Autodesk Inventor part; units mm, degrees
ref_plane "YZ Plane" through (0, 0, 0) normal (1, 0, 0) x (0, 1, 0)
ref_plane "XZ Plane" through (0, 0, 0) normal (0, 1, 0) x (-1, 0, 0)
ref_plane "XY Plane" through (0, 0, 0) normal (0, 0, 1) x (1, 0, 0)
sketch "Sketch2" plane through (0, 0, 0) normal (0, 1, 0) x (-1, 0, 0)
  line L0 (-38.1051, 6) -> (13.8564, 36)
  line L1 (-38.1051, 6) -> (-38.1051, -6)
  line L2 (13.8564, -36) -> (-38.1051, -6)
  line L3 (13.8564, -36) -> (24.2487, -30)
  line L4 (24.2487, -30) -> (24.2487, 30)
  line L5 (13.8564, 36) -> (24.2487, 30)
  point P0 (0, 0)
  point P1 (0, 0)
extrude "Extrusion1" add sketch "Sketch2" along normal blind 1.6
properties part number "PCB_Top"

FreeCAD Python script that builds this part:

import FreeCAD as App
import Part
import Sketcher
Q = App.Units.Quantity


def add_polygon(sketch, points):
    """Adds a closed chain of lines whose ends are joined by coincident constraints."""
    first, n = sketch.GeometryCount, len(points)
    for a, b in zip(points, points[1:] + points[:1]):
        sketch.addGeometry(Part.LineSegment(App.Vector(*a, 0), App.Vector(*b, 0)), False)
    for i in range(n):
        sketch.addConstraint(Sketcher.Constraint("Coincident", first + i, 2, first + (i + 1) % n, 1))

doc = App.newDocument("Part")
body = doc.addObject("PartDesign::Body", "Body")

# Sketch on XZ plane
sketch1 = body.newObject("Sketcher::SketchObject", "Sketch")
sketch1.AttachmentSupport = (doc.getObject("XZ_Plane"), [""])
sketch1.MapMode = "FlatFace"
add_polygon(sketch1, [(-13.8564, 36), (38.1051, 6), (38.1051, -6), (-13.8564, -36), (-24.2487, -30), (-24.2487, 30)])  # lines 0-5
sketch1.addConstraint(Sketcher.Constraint("Vertical", 1))
sketch1.addConstraint(Sketcher.Constraint("Vertical", 4))
sketch1.addConstraint(Sketcher.Constraint("Symmetric", 2, 2, 5, 2, -1))
sketch1.addConstraint(Sketcher.Constraint("Parallel", 0, 3))
sketch1.addConstraint(Sketcher.Constraint("Parallel", 2, 5))
sketch1.addConstraint(Sketcher.Constraint("Equal", 0, 2))
sketch1.addConstraint(Sketcher.Constraint("DistanceY", 1, 2, 1, 1, Q("12 mm")))
sketch1.addConstraint(Sketcher.Constraint("DistanceY", 4, 1, 4, 2, Q("60 mm")))
sketch1.addConstraint(Sketcher.Constraint("Angle", 0, Q("-30 deg")))
sketch1.addConstraint(Sketcher.Constraint("Distance", 0, Q("60 mm")))
sketch1.addConstraint(Sketcher.Constraint("DistanceX", -1, 1, 0, 2, Q("38.105 mm")))
pad1 = body.newObject("PartDesign::Pad", "Pad")
pad1.Profile = sketch1
pad1.Length = 1.6
pad1.Reversed = True

doc.recompute()
